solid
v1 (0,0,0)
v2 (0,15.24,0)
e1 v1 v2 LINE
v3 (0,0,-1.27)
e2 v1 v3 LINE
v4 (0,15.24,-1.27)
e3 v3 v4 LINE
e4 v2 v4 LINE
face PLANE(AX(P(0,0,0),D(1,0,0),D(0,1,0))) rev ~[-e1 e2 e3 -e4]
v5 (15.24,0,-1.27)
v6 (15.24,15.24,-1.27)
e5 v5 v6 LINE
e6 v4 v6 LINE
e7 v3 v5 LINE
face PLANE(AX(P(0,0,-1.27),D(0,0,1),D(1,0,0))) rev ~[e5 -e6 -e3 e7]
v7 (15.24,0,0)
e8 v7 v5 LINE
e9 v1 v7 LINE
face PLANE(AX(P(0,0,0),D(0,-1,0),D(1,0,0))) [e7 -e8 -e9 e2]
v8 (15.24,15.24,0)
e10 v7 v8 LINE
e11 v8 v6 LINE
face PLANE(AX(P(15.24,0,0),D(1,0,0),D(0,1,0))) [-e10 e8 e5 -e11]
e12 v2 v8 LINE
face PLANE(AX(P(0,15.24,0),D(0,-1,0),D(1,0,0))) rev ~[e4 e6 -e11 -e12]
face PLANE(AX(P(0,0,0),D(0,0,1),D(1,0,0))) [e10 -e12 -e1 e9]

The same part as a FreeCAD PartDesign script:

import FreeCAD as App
import Part
import Sketcher
Q = App.Units.Quantity

doc = App.newDocument("Part")
body = doc.addObject("PartDesign::Body", "Body")

# Sketch on XY plane
sketch1 = body.newObject("Sketcher::SketchObject", "Sketch")
sketch1.AttachmentSupport = (doc.getObject("XY_Plane"), [""])
sketch1.MapMode = "FlatFace"
sketch1.addGeometry([
    Part.LineSegment(App.Vector(0, 15, 0), App.Vector(0, 0, 0)),
    Part.LineSegment(App.Vector(0, 0, 0), App.Vector(15, 0, 0)),
    Part.LineSegment(App.Vector(15, 0, 0), App.Vector(15, 15, 0)),
    Part.LineSegment(App.Vector(15, 15, 0), App.Vector(0, 15, 0)),
], False)
sketch1.addConstraint([
    Sketcher.Constraint("Coincident", 0, 2, 1, 1),
    Sketcher.Constraint("Coincident", 1, 2, 2, 1),
    Sketcher.Constraint("Coincident", 2, 2, 3, 1),
    Sketcher.Constraint("Coincident", 3, 2, 0, 1),
    Sketcher.Constraint("Vertical", 0),
    Sketcher.Constraint("Horizontal", 1),
    Sketcher.Constraint("Vertical", 2),
    Sketcher.Constraint("Horizontal", 3),
    Sketcher.Constraint("Coincident", 0, 2, -1, 1),
    Sketcher.Constraint("Equal", 3, 0),
    Sketcher.Constraint("DistanceX", 1, 1, 1, 2, Q("0.6 in")),
])
pad1 = body.newObject("PartDesign::Pad", "Pad")
pad1.Profile = sketch1
pad1.Length = Q("0.05 in")
pad1.Reversed = True

doc.recompute()
